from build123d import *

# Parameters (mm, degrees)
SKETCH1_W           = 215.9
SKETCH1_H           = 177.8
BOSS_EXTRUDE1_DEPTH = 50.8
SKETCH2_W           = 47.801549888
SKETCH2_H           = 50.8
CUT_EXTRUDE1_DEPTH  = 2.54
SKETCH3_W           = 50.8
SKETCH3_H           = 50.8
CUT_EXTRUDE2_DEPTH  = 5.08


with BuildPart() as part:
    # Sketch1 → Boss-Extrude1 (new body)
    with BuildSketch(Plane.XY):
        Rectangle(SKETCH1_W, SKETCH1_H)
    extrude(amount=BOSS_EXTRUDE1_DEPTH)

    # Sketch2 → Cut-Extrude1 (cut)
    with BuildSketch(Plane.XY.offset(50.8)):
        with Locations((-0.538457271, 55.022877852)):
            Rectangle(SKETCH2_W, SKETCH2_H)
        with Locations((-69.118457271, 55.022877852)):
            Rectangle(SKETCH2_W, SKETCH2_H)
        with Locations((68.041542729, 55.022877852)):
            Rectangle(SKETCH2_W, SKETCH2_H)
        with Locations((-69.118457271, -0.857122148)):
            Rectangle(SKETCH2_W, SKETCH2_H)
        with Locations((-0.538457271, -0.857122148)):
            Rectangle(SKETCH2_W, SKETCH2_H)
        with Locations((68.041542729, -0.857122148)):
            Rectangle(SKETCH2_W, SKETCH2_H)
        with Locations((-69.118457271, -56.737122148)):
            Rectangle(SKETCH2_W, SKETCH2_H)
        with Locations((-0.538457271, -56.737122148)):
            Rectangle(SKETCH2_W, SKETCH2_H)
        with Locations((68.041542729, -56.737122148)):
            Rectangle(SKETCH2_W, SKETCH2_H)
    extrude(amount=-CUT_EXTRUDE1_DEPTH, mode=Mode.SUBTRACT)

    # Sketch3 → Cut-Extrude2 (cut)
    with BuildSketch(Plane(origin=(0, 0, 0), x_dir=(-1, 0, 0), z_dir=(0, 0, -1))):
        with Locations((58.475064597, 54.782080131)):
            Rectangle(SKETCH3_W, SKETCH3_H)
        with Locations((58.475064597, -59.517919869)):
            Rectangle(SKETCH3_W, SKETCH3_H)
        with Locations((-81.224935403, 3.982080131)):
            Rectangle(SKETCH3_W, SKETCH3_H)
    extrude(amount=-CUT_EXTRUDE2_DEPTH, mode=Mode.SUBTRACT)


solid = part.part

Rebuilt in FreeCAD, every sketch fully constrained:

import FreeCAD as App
import Part
import Sketcher
from FreeCAD import Vector
Q = App.Units.Quantity

doc = App.newDocument("Part")
body = doc.addObject("PartDesign::Body", "Body")

# Sketch on XY plane
sketch1 = body.newObject("Sketcher::SketchObject", "Sketch")
sketch1.AttachmentSupport = (doc.getObject("XY_Plane"), [""])
sketch1.MapMode = "FlatFace"
sketch1.addGeometry([
    Part.LineSegment(Vector(-108, 89, 0), Vector(-108, -89, 0)),
    Part.LineSegment(Vector(-108, -89, 0), Vector(108, -89, 0)),
    Part.LineSegment(Vector(108, -89, 0), Vector(108, 89, 0)),
    Part.LineSegment(Vector(108, 89, 0), Vector(-108, 89, 0)),
], False)
sketch1.addConstraint([
    Sketcher.Constraint("Coincident", 0, 2, 1, 1),
    Sketcher.Constraint("Coincident", 1, 2, 2, 1),
    Sketcher.Constraint("Coincident", 2, 2, 3, 1),
    Sketcher.Constraint("Coincident", 3, 2, 0, 1),
    Sketcher.Constraint("Vertical", 0),
    Sketcher.Constraint("Horizontal", 1),
    Sketcher.Constraint("Vertical", 2),
    Sketcher.Constraint("Horizontal", 3),
    Sketcher.Constraint("Symmetric", 0, 2, 2, 2, -1, 1),
    Sketcher.Constraint("DistanceY", 0, 2, 0, 1, Q("7 in")),
    Sketcher.Constraint("DistanceX", 1, 1, 1, 2, Q("8.5 in")),
])
pad1 = body.newObject("PartDesign::Pad", "Pad")
pad1.Profile = sketch1
pad1.Length = Q("2 in")

# Sketch on XY plane
sketch2 = body.newObject("Sketcher::SketchObject", "Sketch001")
sketch2.AttachmentSupport = (doc.getObject("XY_Plane"), [""])
sketch2.MapMode = "FlatFace"
sketch2.AttachmentOffset = App.Placement(Vector(0, 0, 2 * 25.4), App.Rotation())
sketch2.addGeometry([
    Part.LineSegment(Vector(-24, 80, 0), Vector(-24, 30, 0)),  # 0
    Part.LineSegment(Vector(-24, 30, 0), Vector(23, 30, 0)),  # 1
    Part.LineSegment(Vector(23, 30, 0), Vector(23, 80, 0)),  # 2
    Part.LineSegment(Vector(23, 80, 0), Vector(-24, 80, 0)),  # 3
    Part.LineSegment(Vector(-93, 80, 0), Vector(-93, 30, 0)),  # 4
    Part.LineSegment(Vector(-93, 30, 0), Vector(-45, 30, 0)),  # 5
    Part.LineSegment(Vector(-45, 30, 0), Vector(-45, 80, 0)),  # 6
    Part.LineSegment(Vector(-45, 80, 0), Vector(-93, 80, 0)),  # 7
    Part.LineSegment(Vector(44, 80, 0), Vector(44, 30, 0)),  # 8
    Part.LineSegment(Vector(44, 30, 0), Vector(92, 30, 0)),  # 9
    Part.LineSegment(Vector(92, 30, 0), Vector(92, 80, 0)),  # 10
    Part.LineSegment(Vector(92, 80, 0), Vector(44, 80, 0)),  # 11
    Part.LineSegment(Vector(-93, 25, 0), Vector(-93, -26, 0)),  # 12
    Part.LineSegment(Vector(-93, -26, 0), Vector(-45, -26, 0)),  # 13
    Part.LineSegment(Vector(-45, -26, 0), Vector(-45, 25, 0)),  # 14
    Part.LineSegment(Vector(-45, 25, 0), Vector(-93, 25, 0)),  # 15
    Part.LineSegment(Vector(-24, 25, 0), Vector(-24, -26, 0)),  # 16
    Part.LineSegment(Vector(-24, -26, 0), Vector(23, -26, 0)),  # 17
    Part.LineSegment(Vector(23, -26, 0), Vector(23, 25, 0)),  # 18
    Part.LineSegment(Vector(23, 25, 0), Vector(-24, 25, 0)),  # 19
    Part.LineSegment(Vector(44, 25, 0), Vector(44, -26, 0)),  # 20
    Part.LineSegment(Vector(44, -26, 0), Vector(92, -26, 0)),  # 21
    Part.LineSegment(Vector(92, -26, 0), Vector(92, 25, 0)),  # 22
    Part.LineSegment(Vector(92, 25, 0), Vector(44, 25, 0)),  # 23
    Part.LineSegment(Vector(-93, -31, 0), Vector(-93, -82, 0)),  # 24
    Part.LineSegment(Vector(-93, -82, 0), Vector(-45, -82, 0)),  # 25
    Part.LineSegment(Vector(-45, -82, 0), Vector(-45, -31, 0)),  # 26
    Part.LineSegment(Vector(-45, -31, 0), Vector(-93, -31, 0)),  # 27
    Part.LineSegment(Vector(-24, -31, 0), Vector(-24, -82, 0)),  # 28
    Part.LineSegment(Vector(-24, -82, 0), Vector(23, -82, 0)),  # 29
    Part.LineSegment(Vector(23, -82, 0), Vector(23, -31, 0)),  # 30
    Part.LineSegment(Vector(23, -31, 0), Vector(-24, -31, 0)),  # 31
    Part.LineSegment(Vector(44, -31, 0), Vector(44, -82, 0)),  # 32
    Part.LineSegment(Vector(44, -82, 0), Vector(92, -82, 0)),  # 33
    Part.LineSegment(Vector(92, -82, 0), Vector(92, -31, 0)),  # 34
    Part.LineSegment(Vector(92, -31, 0), Vector(44, -31, 0)),  # 35
], False)
sketch2.addConstraint([
    Sketcher.Constraint("Coincident", 0, 2, 1, 1),
    Sketcher.Constraint("Coincident", 1, 2, 2, 1),
    Sketcher.Constraint("Coincident", 2, 2, 3, 1),
    Sketcher.Constraint("Coincident", 3, 2, 0, 1),
    Sketcher.Constraint("Coincident", 4, 2, 5, 1),
    Sketcher.Constraint("Coincident", 5, 2, 6, 1),
    Sketcher.Constraint("Coincident", 6, 2, 7, 1),
    Sketcher.Constraint("Coincident", 7, 2, 4, 1),
    Sketcher.Constraint("Coincident", 8, 2, 9, 1),
    Sketcher.Constraint("Coincident", 9, 2, 10, 1),
    Sketcher.Constraint("Coincident", 10, 2, 11, 1),
    Sketcher.Constraint("Coincident", 11, 2, 8, 1),
    Sketcher.Constraint("Coincident", 12, 2, 13, 1),
    Sketcher.Constraint("Coincident", 13, 2, 14, 1),
    Sketcher.Constraint("Coincident", 14, 2, 15, 1),
    Sketcher.Constraint("Coincident", 15, 2, 12, 1),
    Sketcher.Constraint("Coincident", 16, 2, 17, 1),
    Sketcher.Constraint("Coincident", 17, 2, 18, 1),
    Sketcher.Constraint("Coincident", 18, 2, 19, 1),
    Sketcher.Constraint("Coincident", 19, 2, 16, 1),
    Sketcher.Constraint("Coincident", 20, 2, 21, 1),
    Sketcher.Constraint("Coincident", 21, 2, 22, 1),
    Sketcher.Constraint("Coincident", 22, 2, 23, 1),
    Sketcher.Constraint("Coincident", 23, 2, 20, 1),
    Sketcher.Constraint("Coincident", 24, 2, 25, 1),
    Sketcher.Constraint("Coincident", 25, 2, 26, 1),
    Sketcher.Constraint("Coincident", 26, 2, 27, 1),
    Sketcher.Constraint("Coincident", 27, 2, 24, 1),
    Sketcher.Constraint("Coincident", 28, 2, 29, 1),
    Sketcher.Constraint("Coincident", 29, 2, 30, 1),
    Sketcher.Constraint("Coincident", 30, 2, 31, 1),
    Sketcher.Constraint("Coincident", 31, 2, 28, 1),
    Sketcher.Constraint("Coincident", 32, 2, 33, 1),
    Sketcher.Constraint("Coincident", 33, 2, 34, 1),
    Sketcher.Constraint("Coincident", 34, 2, 35, 1),
    Sketcher.Constraint("Coincident", 35, 2, 32, 1),
    Sketcher.Constraint("Vertical", 0),
    Sketcher.Constraint("Horizontal", 1),
    Sketcher.Constraint("Vertical", 2),
    Sketcher.Constraint("Horizontal", 3),
    Sketcher.Constraint("Vertical", 4),
    Sketcher.Constraint("Horizontal", 5),
    Sketcher.Constraint("Vertical", 6),
    Sketcher.Constraint("Horizontal", 7),
    Sketcher.Constraint("Vertical", 8),
    Sketcher.Constraint("Horizontal", 9),
    Sketcher.Constraint("Vertical", 10),
    Sketcher.Constraint("Horizontal", 11),
    Sketcher.Constraint("Vertical", 12),
    Sketcher.Constraint("Horizontal", 13),
    Sketcher.Constraint("Vertical", 14),
    Sketcher.Constraint("Horizontal", 15),
    Sketcher.Constraint("Vertical", 16),
    Sketcher.Constraint("Horizontal", 17),
    Sketcher.Constraint("Vertical", 18),
    Sketcher.Constraint("Horizontal", 19),
    Sketcher.Constraint("Vertical", 20),
    Sketcher.Constraint("Horizontal", 21),
    Sketcher.Constraint("Vertical", 22),
    Sketcher.Constraint("Horizontal", 23),
    Sketcher.Constraint("Vertical", 24),
    Sketcher.Constraint("Horizontal", 25),
    Sketcher.Constraint("Vertical", 26),
    Sketcher.Constraint("Horizontal", 27),
    Sketcher.Constraint("Vertical", 28),
    Sketcher.Constraint("Horizontal", 29),
    Sketcher.Constraint("Vertical", 30),
    Sketcher.Constraint("Horizontal", 31),
    Sketcher.Constraint("Vertical", 32),
    Sketcher.Constraint("Horizontal", 33),
    Sketcher.Constraint("Vertical", 34),
    Sketcher.Constraint("Horizontal", 35),
    Sketcher.Constraint("Horizontal", 1, 2, 4, 2),
    Sketcher.Constraint("Horizontal", 3, 2, 6, 2),
    Sketcher.Constraint("Horizontal", 5, 2, 8, 2),
    Sketcher.Constraint("Horizontal", 7, 2, 10, 2),
    Sketcher.Constraint("Horizontal", 13, 2, 16, 2),
    Sketcher.Constraint("Horizontal", 15, 2, 18, 2),
    Sketcher.Constraint("Horizontal", 17, 2, 20, 2),
    Sketcher.Constraint("Horizontal", 19, 2, 22, 2),
    Sketcher.Constraint("Horizontal", 25, 2, 28, 2),
    Sketcher.Constraint("Horizontal", 27, 2, 30, 2),
    Sketcher.Constraint("Horizontal", 29, 2, 32, 2),
    Sketcher.Constraint("Horizontal", 31, 2, 34, 2),
    Sketcher.Constraint("Vertical", 7, 2, 12, 2),
    Sketcher.Constraint("Vertical", 6, 2, 13, 2),
    Sketcher.Constraint("Vertical", 3, 2, 16, 2),
    Sketcher.Constraint("Vertical", 2, 2, 17, 2),
    Sketcher.Constraint("Vertical", 11, 2, 20, 2),
    Sketcher.Constraint("Vertical", 10, 2, 21, 2),
    Sketcher.Constraint("Vertical", 15, 2, 24, 2),
    Sketcher.Constraint("Vertical", 14, 2, 25, 2),
    Sketcher.Constraint("Vertical", 19, 2, 28, 2),
    Sketcher.Constraint("Vertical", 18, 2, 29, 2),
    Sketcher.Constraint("Vertical", 23, 2, 32, 2),
    Sketcher.Constraint("Vertical", 22, 2, 33, 2),
    Sketcher.Constraint("Equal", 3, 5),
    Sketcher.Constraint("Equal", 7, 9),
    Sketcher.Constraint("Equal", 10, 12),
    Sketcher.Constraint("Equal", 22, 24),
    Sketcher.Constraint("DistanceY", 0, 2, 0, 1, Q("2 in")),
    Sketcher.Constraint("DistanceX", 4, 2, 0, 2, Q("2.7 in")),
    Sketcher.Constraint("DistanceX", 0, 2, 8, 2, Q("2.7 in")),
    Sketcher.Constraint("DistanceY", 12, 2, 4, 2, Q("2.2 in")),
    Sketcher.Constraint("DistanceY", 24, 2, 12, 2, Q("2.2 in")),
    Sketcher.Constraint("DistanceX", 1, 1, 1, 2, Q("47.80155 mm")),
    Sketcher.Constraint("DistanceX", 0, 2, -1, 1, Q("24.439232 mm")),
    Sketcher.Constraint("DistanceY", -1, 1, 0, 2, Q("29.622878 mm")),
])
pocket1 = body.newObject("PartDesign::Pocket", "Pocket")
pocket1.Profile = sketch2
pocket1.Length = Q("0.1 in")

# Sketch on XY plane
sketch3 = body.newObject("Sketcher::SketchObject", "Sketch002")
sketch3.AttachmentSupport = (doc.getObject("XY_Plane"), [""])
sketch3.MapMode = "FlatFace"
sketch3.addGeometry([
    Part.LineSegment(Vector(-33, 80, 0), Vector(-33, 29, 0)),  # 0
    Part.LineSegment(Vector(-33, 29, 0), Vector(-84, 29, 0)),  # 1
    Part.LineSegment(Vector(-84, 29, 0), Vector(-84, 80, 0)),  # 2
    Part.LineSegment(Vector(-84, 80, 0), Vector(-33, 80, 0)),  # 3
    Part.LineSegment(Vector(-33, -34, 0), Vector(-33, -85, 0)),  # 4
    Part.LineSegment(Vector(-33, -85, 0), Vector(-84, -85, 0)),  # 5
    Part.LineSegment(Vector(-84, -85, 0), Vector(-84, -34, 0)),  # 6
    Part.LineSegment(Vector(-84, -34, 0), Vector(-33, -34, 0)),  # 7
    Part.LineSegment(Vector(107, 29, 0), Vector(107, -21, 0)),  # 8
    Part.LineSegment(Vector(107, -21, 0), Vector(56, -21, 0)),  # 9
    Part.LineSegment(Vector(56, -21, 0), Vector(56, 29, 0)),  # 10
    Part.LineSegment(Vector(56, 29, 0), Vector(107, 29, 0)),  # 11
], False)
sketch3.addConstraint([
    Sketcher.Constraint("Coincident", 0, 2, 1, 1),
    Sketcher.Constraint("Coincident", 1, 2, 2, 1),
    Sketcher.Constraint("Coincident", 2, 2, 3, 1),
    Sketcher.Constraint("Coincident", 3, 2, 0, 1),
    Sketcher.Constraint("Coincident", 4, 2, 5, 1),
    Sketcher.Constraint("Coincident", 5, 2, 6, 1),
    Sketcher.Constraint("Coincident", 6, 2, 7, 1),
    Sketcher.Constraint("Coincident", 7, 2, 4, 1),
    Sketcher.Constraint("Coincident", 8, 2, 9, 1),
    Sketcher.Constraint("Coincident", 9, 2, 10, 1),
    Sketcher.Constraint("Coincident", 10, 2, 11, 1),
    Sketcher.Constraint("Coincident", 11, 2, 8, 1),
    Sketcher.Constraint("Vertical", 0),
    Sketcher.Constraint("Horizontal", 1),
    Sketcher.Constraint("Vertical", 2),
    Sketcher.Constraint("Horizontal", 3),
    Sketcher.Constraint("Vertical", 4),
    Sketcher.Constraint("Horizontal", 5),
    Sketcher.Constraint("Vertical", 6),
    Sketcher.Constraint("Horizontal", 7),
    Sketcher.Constraint("Vertical", 8),
    Sketcher.Constraint("Horizontal", 9),
    Sketcher.Constraint("Vertical", 10),
    Sketcher.Constraint("Horizontal", 11),
    Sketcher.Constraint("Horizontal", 1, 2, 10, 2),
    Sketcher.Constraint("Vertical", 3, 2, 4, 2),
    Sketcher.Constraint("Vertical", 2, 2, 5, 2),
    Sketcher.Constraint("Equal", 7, 9),
    Sketcher.Constraint("Equal", 11, 0),
    Sketcher.Constraint("Equal", 2, 4),
    Sketcher.Constraint("Equal", 6, 8),
    Sketcher.Constraint("DistanceX", 1, 2, 1, 1, Q("2 in")),
    Sketcher.Constraint("DistanceY", 4, 2, 0, 2, Q("4.5 in")),
    Sketcher.Constraint("DistanceX", 7, 2, 8, 2, Q("5.5 in")),
    Sketcher.Constraint("DistanceY", -1, 1, 0, 2, Q("29.38208 mm")),
    Sketcher.Constraint("DistanceX", 0, 2, -1, 1, Q("33.075065 mm")),
])
pocket2 = body.newObject("PartDesign::Pocket", "Pocket001")
pocket2.Profile = sketch3
pocket2.Length = Q("0.2 in")
pocket2.Reversed = True

doc.recompute()
